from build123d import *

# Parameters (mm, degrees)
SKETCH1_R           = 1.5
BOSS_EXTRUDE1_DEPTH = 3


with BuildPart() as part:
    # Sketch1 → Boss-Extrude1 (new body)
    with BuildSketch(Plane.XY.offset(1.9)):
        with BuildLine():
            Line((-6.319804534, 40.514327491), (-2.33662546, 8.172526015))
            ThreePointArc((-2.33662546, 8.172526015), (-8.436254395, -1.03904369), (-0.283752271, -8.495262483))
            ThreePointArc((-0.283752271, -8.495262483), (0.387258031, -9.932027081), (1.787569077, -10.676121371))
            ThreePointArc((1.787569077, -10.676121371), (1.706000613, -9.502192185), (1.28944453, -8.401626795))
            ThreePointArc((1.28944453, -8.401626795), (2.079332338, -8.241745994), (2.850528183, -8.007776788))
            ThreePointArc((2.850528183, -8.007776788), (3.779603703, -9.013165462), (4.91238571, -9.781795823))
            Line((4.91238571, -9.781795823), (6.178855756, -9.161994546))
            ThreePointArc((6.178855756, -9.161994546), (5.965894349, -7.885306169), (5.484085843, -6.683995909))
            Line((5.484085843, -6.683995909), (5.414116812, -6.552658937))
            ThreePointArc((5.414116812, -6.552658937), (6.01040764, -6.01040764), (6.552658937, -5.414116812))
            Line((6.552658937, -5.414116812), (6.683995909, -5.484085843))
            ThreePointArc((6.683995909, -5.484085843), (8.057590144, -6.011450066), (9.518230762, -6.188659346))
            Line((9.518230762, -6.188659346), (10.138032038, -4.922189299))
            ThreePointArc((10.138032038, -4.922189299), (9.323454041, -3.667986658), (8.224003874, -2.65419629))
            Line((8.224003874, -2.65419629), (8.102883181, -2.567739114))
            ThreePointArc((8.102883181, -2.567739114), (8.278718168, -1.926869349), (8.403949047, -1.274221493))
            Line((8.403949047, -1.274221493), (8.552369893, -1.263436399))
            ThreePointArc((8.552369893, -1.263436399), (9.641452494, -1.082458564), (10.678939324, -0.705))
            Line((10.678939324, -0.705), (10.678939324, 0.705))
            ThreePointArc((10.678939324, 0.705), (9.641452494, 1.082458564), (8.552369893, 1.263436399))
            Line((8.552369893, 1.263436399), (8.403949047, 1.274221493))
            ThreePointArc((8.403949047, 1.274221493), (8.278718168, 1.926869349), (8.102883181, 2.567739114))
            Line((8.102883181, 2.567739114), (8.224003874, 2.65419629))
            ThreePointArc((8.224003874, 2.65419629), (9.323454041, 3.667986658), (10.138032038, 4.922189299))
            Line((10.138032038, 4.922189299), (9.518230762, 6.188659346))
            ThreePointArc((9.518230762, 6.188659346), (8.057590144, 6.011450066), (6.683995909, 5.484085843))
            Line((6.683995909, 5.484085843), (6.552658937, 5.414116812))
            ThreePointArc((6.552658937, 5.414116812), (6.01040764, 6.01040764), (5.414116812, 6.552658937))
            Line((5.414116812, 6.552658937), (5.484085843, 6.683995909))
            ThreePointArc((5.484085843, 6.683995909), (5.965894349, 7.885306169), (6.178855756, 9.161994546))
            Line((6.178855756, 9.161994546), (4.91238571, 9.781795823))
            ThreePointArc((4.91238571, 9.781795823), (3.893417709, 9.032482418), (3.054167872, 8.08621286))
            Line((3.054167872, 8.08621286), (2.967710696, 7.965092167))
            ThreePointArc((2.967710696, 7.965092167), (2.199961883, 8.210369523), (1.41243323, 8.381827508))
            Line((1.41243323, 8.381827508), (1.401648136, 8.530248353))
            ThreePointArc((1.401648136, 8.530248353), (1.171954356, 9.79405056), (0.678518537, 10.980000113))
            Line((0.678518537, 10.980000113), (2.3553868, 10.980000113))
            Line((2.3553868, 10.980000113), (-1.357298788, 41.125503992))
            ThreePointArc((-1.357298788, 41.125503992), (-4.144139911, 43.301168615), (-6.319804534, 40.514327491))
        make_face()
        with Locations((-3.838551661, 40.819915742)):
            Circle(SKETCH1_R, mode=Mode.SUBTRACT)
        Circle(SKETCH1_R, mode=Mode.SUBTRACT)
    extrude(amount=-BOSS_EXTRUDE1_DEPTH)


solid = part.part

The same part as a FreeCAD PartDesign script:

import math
import FreeCAD as App
import Part
import Sketcher

V = App.Vector

doc = App.newDocument("Part")
body = doc.addObject("PartDesign::Body", "Body")

# Sketch on XY plane
sketch1 = body.newObject("Sketcher::SketchObject", "Sketch")
sketch1.AttachmentSupport = (doc.getObject("XY_Plane"), [""])
sketch1.MapMode = "FlatFace"
sketch1.AttachmentOffset = App.Placement(V(0, 0, 1.9), App.Rotation())
sketch1.addGeometry(Part.LineSegment(V(-6.32, 40.51, 0), V(-2.34, 8.17, 0)), False)
sketch1.addGeometry(Part.ArcOfCircle(Part.Circle(V(0, 0, 0), V(0, 0, 1), 8.5), math.radians(106), math.radians(268)), False)
sketch1.addGeometry(Part.ArcOfCircle(Part.Circle(V(2.2, -8.21, 0), V(0, 0, 1), 2.5), math.radians(-173), math.radians(-99)), False)
sketch1.addGeometry(Part.ArcOfCircle(Part.Circle(V(-2.24, -10.37, 0), V(0, 0, 1), 4.04), math.radians(-4), math.radians(29)), False)
sketch1.addGeometry(Part.ArcOfCircle(Part.Circle(V(0, 0, 0), V(0, 0, 1), 8.5), math.radians(-81.27), math.radians(-70.41)), False)
sketch1.addGeometry(Part.ArcOfCircle(Part.Circle(V(7.69, -4.46, 0), V(0, 0, 1), 6), math.radians(-144), math.radians(-118)), False)
sketch1.addGeometry(Part.LineSegment(V(4.91, -9.78, 0), V(6.18, -9.16, 0)), False)
sketch1.addGeometry(Part.ArcOfCircle(Part.Circle(V(0.19, -9.51, 0), V(0, 0, 1), 6), math.radians(3), math.radians(28)), False)
sketch1.addGeometry(Part.LineSegment(V(5.48, -6.68, 0), V(5.41, -6.55, 0)), False)
sketch1.addGeometry(Part.ArcOfCircle(Part.Circle(V(0, 0, 0), V(0, 0, 1), 8.5), math.radians(-50.43), math.radians(-39.57)), False)
sketch1.addGeometry(Part.LineSegment(V(6.55, -5.41, 0), V(6.68, -5.48, 0)), False)
sketch1.addGeometry(Part.ArcOfCircle(Part.Circle(V(9.51, -0.19, 0), V(0, 0, 1), 6), math.radians(-118), math.radians(-90)), False)
sketch1.addGeometry(Part.LineSegment(V(9.52, -6.19, 0), V(10.14, -4.92, 0)), False)
sketch1.addGeometry(Part.ArcOfCircle(Part.Circle(V(4.74, -7.54, 0), V(0, 0, 1), 6), math.radians(26), math.radians(54)), False)
sketch1.addGeometry(Part.LineSegment(V(8.22, -2.65, 0), V(8.1, -2.57, 0)), False)
sketch1.addGeometry(Part.ArcOfCircle(Part.Circle(V(0, 0, 0), V(0, 0, 1), 8.5), math.radians(-17.58), math.radians(-8.62)), False)
sketch1.addGeometry(Part.LineSegment(V(8.4, -1.27, 0), V(8.55, -1.26, 0)), False)
sketch1.addGeometry(Part.ArcOfCircle(Part.Circle(V(8.12, 4.72, 0), V(0, 0, 1), 6), math.radians(-86), math.radians(-65)), False)
sketch1.addGeometry(Part.LineSegment(V(10.68, -0.7, 0), V(10.68, 0.7, 0)), False)
sketch1.addGeometry(Part.ArcOfCircle(Part.Circle(V(8.12, -4.72, 0), V(0, 0, 1), 6), math.radians(65), math.radians(86)), False)
sketch1.addGeometry(Part.LineSegment(V(8.55, 1.26, 0), V(8.4, 1.27, 0)), False)
sketch1.addGeometry(Part.ArcOfCircle(Part.Circle(V(0, 0, 0), V(0, 0, 1), 8.5), math.radians(8.62), math.radians(17.58)), False)
sketch1.addGeometry(Part.LineSegment(V(8.1, 2.57, 0), V(8.22, 2.65, 0)), False)
sketch1.addGeometry(Part.ArcOfCircle(Part.Circle(V(4.74, 7.54, 0), V(0, 0, 1), 6), math.radians(-54), math.radians(-26)), False)
sketch1.addGeometry(Part.LineSegment(V(10.14, 4.92, 0), V(9.52, 6.19, 0)), False)
sketch1.addGeometry(Part.ArcOfCircle(Part.Circle(V(9.51, 0.19, 0), V(0, 0, 1), 6), math.radians(90), math.radians(118)), False)
sketch1.addGeometry(Part.LineSegment(V(6.68, 5.48, 0), V(6.55, 5.41, 0)), False)
sketch1.addGeometry(Part.ArcOfCircle(Part.Circle(V(0, 0, 0), V(0, 0, 1), 8.5), math.radians(39.57), math.radians(50.43)), False)
sketch1.addGeometry(Part.LineSegment(V(5.41, 6.55, 0), V(5.48, 6.68, 0)), False)
sketch1.addGeometry(Part.ArcOfCircle(Part.Circle(V(0.19, 9.51, 0), V(0, 0, 1), 6), math.radians(-28), math.radians(-3)), False)
sketch1.addGeometry(Part.LineSegment(V(6.18, 9.16, 0), V(4.91, 9.78, 0)), False)
sketch1.addGeometry(Part.ArcOfCircle(Part.Circle(V(7.94, 4.6, 0), V(0, 0, 1), 6), math.radians(120), math.radians(144)), False)
sketch1.addGeometry(Part.LineSegment(V(3.05, 8.09, 0), V(2.97, 7.97, 0)), False)
sketch1.addGeometry(Part.ArcOfCircle(Part.Circle(V(0, 0, 0), V(0, 0, 1), 8.5), math.radians(69.57), math.radians(80.43)), False)
sketch1.addGeometry(Part.LineSegment(V(1.41, 8.38, 0), V(1.4, 8.53, 0)), False)
sketch1.addGeometry(Part.ArcOfCircle(Part.Circle(V(-4.58, 8.1, 0), V(0, 0, 1), 6), math.radians(4), math.radians(29)), False)
sketch1.addGeometry(Part.LineSegment(V(0.68, 10.98, 0), V(2.36, 10.98, 0)), False)
sketch1.addGeometry(Part.LineSegment(V(2.36, 10.98, 0), V(-1.36, 41.13, 0)), False)
sketch1.addGeometry(Part.ArcOfCircle(Part.Circle(V(-3.84, 40.82, 0), V(0, 0, 1), 2.5), math.radians(7), math.radians(187)), False)
sketch1.addGeometry(Part.Circle(V(0, 0, 0), V(0, 0, 1), 1.5), False)
sketch1.addGeometry(Part.Circle(V(-3.84, 40.82, 0), V(0, 0, 1), 1.5), False)
sketch1.addConstraint(Sketcher.Constraint("Coincident", 0, 2, 1, 1))
sketch1.addConstraint(Sketcher.Constraint("Coincident", 1, 2, 2, 1))
sketch1.addConstraint(Sketcher.Constraint("Coincident", 2, 2, 3, 1))
sketch1.addConstraint(Sketcher.Constraint("Coincident", 3, 2, 4, 1))
sketch1.addConstraint(Sketcher.Constraint("Coincident", 4, 2, 5, 1))
sketch1.addConstraint(Sketcher.Constraint("Coincident", 5, 2, 6, 1))
sketch1.addConstraint(Sketcher.Constraint("Coincident", 6, 2, 7, 1))
sketch1.addConstraint(Sketcher.Constraint("Tangent", 7, 2, 8, 1))
sketch1.addConstraint(Sketcher.Constraint("Coincident", 8, 2, 9, 1))
sketch1.addConstraint(Sketcher.Constraint("Coincident", 9, 2, 10, 1))
sketch1.addConstraint(Sketcher.Constraint("Tangent", 10, 2, 11, 1))
sketch1.addConstraint(Sketcher.Constraint("Coincident", 11, 2, 12, 1))
sketch1.addConstraint(Sketcher.Constraint("Coincident", 12, 2, 13, 1))
sketch1.addConstraint(Sketcher.Constraint("Tangent", 13, 2, 14, 1))
sketch1.addConstraint(Sketcher.Constraint("Coincident", 14, 2, 15, 1))
sketch1.addConstraint(Sketcher.Constraint("Coincident", 15, 2, 16, 1))
sketch1.addConstraint(Sketcher.Constraint("Tangent", 16, 2, 17, 1))
sketch1.addConstraint(Sketcher.Constraint("Coincident", 17, 2, 18, 1))
sketch1.addConstraint(Sketcher.Constraint("Coincident", 18, 2, 19, 1))
sketch1.addConstraint(Sketcher.Constraint("Tangent", 19, 2, 20, 1))
sketch1.addConstraint(Sketcher.Constraint("Coincident", 20, 2, 21, 1))
sketch1.addConstraint(Sketcher.Constraint("Coincident", 21, 2, 22, 1))
sketch1.addConstraint(Sketcher.Constraint("Tangent", 22, 2, 23, 1))
sketch1.addConstraint(Sketcher.Constraint("Coincident", 23, 2, 24, 1))
sketch1.addConstraint(Sketcher.Constraint("Coincident", 24, 2, 25, 1))
sketch1.addConstraint(Sketcher.Constraint("Tangent", 25, 2, 26, 1))
sketch1.addConstraint(Sketcher.Constraint("Coincident", 26, 2, 27, 1))
sketch1.addConstraint(Sketcher.Constraint("Coincident", 27, 2, 28, 1))
sketch1.addConstraint(Sketcher.Constraint("Tangent", 28, 2, 29, 1))
sketch1.addConstraint(Sketcher.Constraint("Coincident", 29, 2, 30, 1))
sketch1.addConstraint(Sketcher.Constraint("Coincident", 30, 2, 31, 1))
sketch1.addConstraint(Sketcher.Constraint("Tangent", 31, 2, 32, 1))
sketch1.addConstraint(Sketcher.Constraint("Coincident", 32, 2, 33, 1))
sketch1.addConstraint(Sketcher.Constraint("Coincident", 33, 2, 34, 1))
sketch1.addConstraint(Sketcher.Constraint("Tangent", 34, 2, 35, 1))
sketch1.addConstraint(Sketcher.Constraint("Coincident", 35, 2, 36, 1))
sketch1.addConstraint(Sketcher.Constraint("Coincident", 36, 2, 37, 1))
sketch1.addConstraint(Sketcher.Constraint("Tangent", 37, 2, 38, 1))
sketch1.addConstraint(Sketcher.Constraint("Tangent", 38, 2, 0, 1))
sketch1.addConstraint(Sketcher.Constraint("Vertical", 18))
sketch1.addConstraint(Sketcher.Constraint("Horizontal", 36))
sketch1.addConstraint(Sketcher.Constraint("Coincident", 1, 3, -1, 1))
sketch1.addConstraint(Sketcher.Constraint("Coincident", 4, 3, -1, 1))
sketch1.addConstraint(Sketcher.Constraint("Coincident", 9, 3, -1, 1))
sketch1.addConstraint(Sketcher.Constraint("Coincident", 15, 3, -1, 1))
sketch1.addConstraint(Sketcher.Constraint("Coincident", 21, 3, -1, 1))
sketch1.addConstraint(Sketcher.Constraint("Coincident", 27, 3, -1, 1))
sketch1.addConstraint(Sketcher.Constraint("Coincident", 33, 3, -1, 1))
sketch1.addConstraint(Sketcher.Constraint("Coincident", 39, 3, -1, 1))
sketch1.addConstraint(Sketcher.Constraint("Coincident", 40, 3, 38, 3))
sketch1.addConstraint(Sketcher.Constraint("Equal", 1, 4))
sketch1.addConstraint(Sketcher.Constraint("Equal", 5, 7))
sketch1.addConstraint(Sketcher.Constraint("Equal", 4, 9))
sketch1.addConstraint(Sketcher.Constraint("Equal", 7, 11))
sketch1.addConstraint(Sketcher.Constraint("Equal", 11, 13))
sketch1.addConstraint(Sketcher.Constraint("Equal", 9, 15))
sketch1.addConstraint(Sketcher.Constraint("Equal", 13, 17))
sketch1.addConstraint(Sketcher.Constraint("Equal", 17, 19))
sketch1.addConstraint(Sketcher.Constraint("Equal", 15, 21))
sketch1.addConstraint(Sketcher.Constraint("Equal", 19, 23))
sketch1.addConstraint(Sketcher.Constraint("Equal", 23, 25))
sketch1.addConstraint(Sketcher.Constraint("Equal", 21, 27))
sketch1.addConstraint(Sketcher.Constraint("Equal", 25, 29))
sketch1.addConstraint(Sketcher.Constraint("Equal", 29, 31))
sketch1.addConstraint(Sketcher.Constraint("Equal", 27, 33))
sketch1.addConstraint(Sketcher.Constraint("Equal", 31, 35))
sketch1.addConstraint(Sketcher.Constraint("Equal", 2, 38))
sketch1.addConstraint(Sketcher.Constraint("Equal", 39, 40))
sketch1.addConstraint(Sketcher.Constraint("Symmetric", 17, 3, 19, 3, -1))
sketch1.addConstraint(Sketcher.Constraint("Symmetric", 13, 3, 23, 3, -1))
sketch1.addConstraint(Sketcher.Constraint("Symmetric", 11, 3, 25, 3, -1))
sketch1.addConstraint(Sketcher.Constraint("Symmetric", 7, 3, 29, 3, -1))
sketch1.addConstraint(Sketcher.Constraint("Symmetric", 5, 2, 30, 2, -1))
sketch1.addConstraint(Sketcher.Constraint("Perpendicular", 6, 24))
sketch1.addConstraint(Sketcher.Constraint("Perpendicular", 8, 26))
sketch1.addConstraint(Sketcher.Constraint("Perpendicular", 10, 28))
sketch1.addConstraint(Sketcher.Constraint("Perpendicular", 12, 30))
sketch1.addConstraint(Sketcher.Constraint("Perpendicular", 14, 32))
sketch1.addConstraint(Sketcher.Constraint("Perpendicular", 16, 34))
sketch1.addConstraint(Sketcher.Constraint("Parallel", 0, 37))
sketch1.addConstraint(Sketcher.Constraint("Vertical", 16, 2, 19, 2))
sketch1.addConstraint(Sketcher.Constraint("Vertical", 14, 2, 21, 2))
sketch1.addConstraint(Sketcher.Constraint("Vertical", 12, 2, 23, 2))
sketch1.addConstraint(Sketcher.Constraint("Vertical", 11, 2, 24, 2))
sketch1.addConstraint(Sketcher.Constraint("Vertical", 10, 2, 25, 2))
sketch1.addConstraint(Sketcher.Constraint("Equal", 8, 10))
sketch1.addConstraint(Sketcher.Constraint("Equal", 6, 12))
sketch1.addConstraint(Sketcher.Constraint("Equal", 10, 14))
sketch1.addConstraint(Sketcher.Constraint("Equal", 14, 16))
sketch1.addConstraint(Sketcher.Constraint("Equal", 28, 32))
sketch1.addConstraint(Sketcher.Constraint("Equal", 32, 34))
sketch1.addConstraint(Sketcher.Constraint("Diameter", 39, 3.0))
sketch1.addConstraint(Sketcher.Constraint("Radius", 5, 6.0))
sketch1.addConstraint(Sketcher.Constraint("Radius", 1, 8.5))
sketch1.addConstraint(Sketcher.Constraint("Radius", 2, 2.5))
sketch1.addConstraint(Sketcher.Constraint("DistanceY", 18, 1, 18, 2, 1.41))
sketch1.addConstraint(Sketcher.Constraint("Distance", 6, 1.41))
sketch1.addConstraint(Sketcher.Constraint("DistanceY", -1, 1, 35, 2, 10.98))
sketch1.addConstraint(Sketcher.Constraint("Radius", 3, 4.038069))
sketch1.addConstraint(Sketcher.Constraint("DistanceX", 36, 1, 36, 2, 1.676868))
sketch1.addConstraint(Sketcher.Constraint("DistanceY", -1, 1, 35, 3, 8.095401))
sketch1.addConstraint(Sketcher.Constraint("DistanceX", 37, 2, -1, 1, 1.357299))
sketch1.addConstraint(Sketcher.Constraint("Distance", 0, 32.58616))
sketch1.addConstraint(Sketcher.Constraint("Distance", 37, 30.373268))
sketch1.addConstraint(Sketcher.Constraint("DistanceX", -1, 1, 2, 3, 2.199962))
sketch1.addConstraint(Sketcher.Constraint("DistanceY", 2, 3, -1, 1, 8.21037))
sketch1.addConstraint(Sketcher.Constraint("DistanceX", 3, 3, -1, 1, 2.23858))
sketch1.addConstraint(Sketcher.Constraint("DistanceX", -1, 1, 5, 3, 7.692881))
sketch1.addConstraint(Sketcher.Constraint("DistanceY", 5, 3, -1, 1, 4.46495))
sketch1.addConstraint(Sketcher.Constraint("DistanceY", -1, 1, 31, 3, 4.600322))
sketch1.addConstraint(Sketcher.Constraint("DistanceX", -1, 1, 2, 2, 1.787569))
sketch1.addConstraint(Sketcher.Constraint("DistanceY", 8, 2, -1, 1, 6.552659))
sketch1.addConstraint(Sketcher.Constraint("DistanceX", -1, 1, 9, 2, 6.552659))
sketch1.addConstraint(Sketcher.Constraint("DistanceX", -1, 1, 11, 2, 9.518231))
sketch1.addConstraint(Sketcher.Constraint("DistanceY", 11, 2, -1, 1, 6.188659))
sketch1.addConstraint(Sketcher.Constraint("DistanceY", 12, 2, -1, 1, 4.922189))
sketch1.addConstraint(Sketcher.Constraint("DistanceY", 14, 2, -1, 1, 2.567739))
sketch1.addConstraint(Sketcher.Constraint("DistanceX", -1, 1, 15, 2, 8.403949))
pad1 = body.newObject("PartDesign::Pad", "Pad")
pad1.Profile = sketch1
pad1.Length = 3
pad1.Reversed = True

doc.recompute()
